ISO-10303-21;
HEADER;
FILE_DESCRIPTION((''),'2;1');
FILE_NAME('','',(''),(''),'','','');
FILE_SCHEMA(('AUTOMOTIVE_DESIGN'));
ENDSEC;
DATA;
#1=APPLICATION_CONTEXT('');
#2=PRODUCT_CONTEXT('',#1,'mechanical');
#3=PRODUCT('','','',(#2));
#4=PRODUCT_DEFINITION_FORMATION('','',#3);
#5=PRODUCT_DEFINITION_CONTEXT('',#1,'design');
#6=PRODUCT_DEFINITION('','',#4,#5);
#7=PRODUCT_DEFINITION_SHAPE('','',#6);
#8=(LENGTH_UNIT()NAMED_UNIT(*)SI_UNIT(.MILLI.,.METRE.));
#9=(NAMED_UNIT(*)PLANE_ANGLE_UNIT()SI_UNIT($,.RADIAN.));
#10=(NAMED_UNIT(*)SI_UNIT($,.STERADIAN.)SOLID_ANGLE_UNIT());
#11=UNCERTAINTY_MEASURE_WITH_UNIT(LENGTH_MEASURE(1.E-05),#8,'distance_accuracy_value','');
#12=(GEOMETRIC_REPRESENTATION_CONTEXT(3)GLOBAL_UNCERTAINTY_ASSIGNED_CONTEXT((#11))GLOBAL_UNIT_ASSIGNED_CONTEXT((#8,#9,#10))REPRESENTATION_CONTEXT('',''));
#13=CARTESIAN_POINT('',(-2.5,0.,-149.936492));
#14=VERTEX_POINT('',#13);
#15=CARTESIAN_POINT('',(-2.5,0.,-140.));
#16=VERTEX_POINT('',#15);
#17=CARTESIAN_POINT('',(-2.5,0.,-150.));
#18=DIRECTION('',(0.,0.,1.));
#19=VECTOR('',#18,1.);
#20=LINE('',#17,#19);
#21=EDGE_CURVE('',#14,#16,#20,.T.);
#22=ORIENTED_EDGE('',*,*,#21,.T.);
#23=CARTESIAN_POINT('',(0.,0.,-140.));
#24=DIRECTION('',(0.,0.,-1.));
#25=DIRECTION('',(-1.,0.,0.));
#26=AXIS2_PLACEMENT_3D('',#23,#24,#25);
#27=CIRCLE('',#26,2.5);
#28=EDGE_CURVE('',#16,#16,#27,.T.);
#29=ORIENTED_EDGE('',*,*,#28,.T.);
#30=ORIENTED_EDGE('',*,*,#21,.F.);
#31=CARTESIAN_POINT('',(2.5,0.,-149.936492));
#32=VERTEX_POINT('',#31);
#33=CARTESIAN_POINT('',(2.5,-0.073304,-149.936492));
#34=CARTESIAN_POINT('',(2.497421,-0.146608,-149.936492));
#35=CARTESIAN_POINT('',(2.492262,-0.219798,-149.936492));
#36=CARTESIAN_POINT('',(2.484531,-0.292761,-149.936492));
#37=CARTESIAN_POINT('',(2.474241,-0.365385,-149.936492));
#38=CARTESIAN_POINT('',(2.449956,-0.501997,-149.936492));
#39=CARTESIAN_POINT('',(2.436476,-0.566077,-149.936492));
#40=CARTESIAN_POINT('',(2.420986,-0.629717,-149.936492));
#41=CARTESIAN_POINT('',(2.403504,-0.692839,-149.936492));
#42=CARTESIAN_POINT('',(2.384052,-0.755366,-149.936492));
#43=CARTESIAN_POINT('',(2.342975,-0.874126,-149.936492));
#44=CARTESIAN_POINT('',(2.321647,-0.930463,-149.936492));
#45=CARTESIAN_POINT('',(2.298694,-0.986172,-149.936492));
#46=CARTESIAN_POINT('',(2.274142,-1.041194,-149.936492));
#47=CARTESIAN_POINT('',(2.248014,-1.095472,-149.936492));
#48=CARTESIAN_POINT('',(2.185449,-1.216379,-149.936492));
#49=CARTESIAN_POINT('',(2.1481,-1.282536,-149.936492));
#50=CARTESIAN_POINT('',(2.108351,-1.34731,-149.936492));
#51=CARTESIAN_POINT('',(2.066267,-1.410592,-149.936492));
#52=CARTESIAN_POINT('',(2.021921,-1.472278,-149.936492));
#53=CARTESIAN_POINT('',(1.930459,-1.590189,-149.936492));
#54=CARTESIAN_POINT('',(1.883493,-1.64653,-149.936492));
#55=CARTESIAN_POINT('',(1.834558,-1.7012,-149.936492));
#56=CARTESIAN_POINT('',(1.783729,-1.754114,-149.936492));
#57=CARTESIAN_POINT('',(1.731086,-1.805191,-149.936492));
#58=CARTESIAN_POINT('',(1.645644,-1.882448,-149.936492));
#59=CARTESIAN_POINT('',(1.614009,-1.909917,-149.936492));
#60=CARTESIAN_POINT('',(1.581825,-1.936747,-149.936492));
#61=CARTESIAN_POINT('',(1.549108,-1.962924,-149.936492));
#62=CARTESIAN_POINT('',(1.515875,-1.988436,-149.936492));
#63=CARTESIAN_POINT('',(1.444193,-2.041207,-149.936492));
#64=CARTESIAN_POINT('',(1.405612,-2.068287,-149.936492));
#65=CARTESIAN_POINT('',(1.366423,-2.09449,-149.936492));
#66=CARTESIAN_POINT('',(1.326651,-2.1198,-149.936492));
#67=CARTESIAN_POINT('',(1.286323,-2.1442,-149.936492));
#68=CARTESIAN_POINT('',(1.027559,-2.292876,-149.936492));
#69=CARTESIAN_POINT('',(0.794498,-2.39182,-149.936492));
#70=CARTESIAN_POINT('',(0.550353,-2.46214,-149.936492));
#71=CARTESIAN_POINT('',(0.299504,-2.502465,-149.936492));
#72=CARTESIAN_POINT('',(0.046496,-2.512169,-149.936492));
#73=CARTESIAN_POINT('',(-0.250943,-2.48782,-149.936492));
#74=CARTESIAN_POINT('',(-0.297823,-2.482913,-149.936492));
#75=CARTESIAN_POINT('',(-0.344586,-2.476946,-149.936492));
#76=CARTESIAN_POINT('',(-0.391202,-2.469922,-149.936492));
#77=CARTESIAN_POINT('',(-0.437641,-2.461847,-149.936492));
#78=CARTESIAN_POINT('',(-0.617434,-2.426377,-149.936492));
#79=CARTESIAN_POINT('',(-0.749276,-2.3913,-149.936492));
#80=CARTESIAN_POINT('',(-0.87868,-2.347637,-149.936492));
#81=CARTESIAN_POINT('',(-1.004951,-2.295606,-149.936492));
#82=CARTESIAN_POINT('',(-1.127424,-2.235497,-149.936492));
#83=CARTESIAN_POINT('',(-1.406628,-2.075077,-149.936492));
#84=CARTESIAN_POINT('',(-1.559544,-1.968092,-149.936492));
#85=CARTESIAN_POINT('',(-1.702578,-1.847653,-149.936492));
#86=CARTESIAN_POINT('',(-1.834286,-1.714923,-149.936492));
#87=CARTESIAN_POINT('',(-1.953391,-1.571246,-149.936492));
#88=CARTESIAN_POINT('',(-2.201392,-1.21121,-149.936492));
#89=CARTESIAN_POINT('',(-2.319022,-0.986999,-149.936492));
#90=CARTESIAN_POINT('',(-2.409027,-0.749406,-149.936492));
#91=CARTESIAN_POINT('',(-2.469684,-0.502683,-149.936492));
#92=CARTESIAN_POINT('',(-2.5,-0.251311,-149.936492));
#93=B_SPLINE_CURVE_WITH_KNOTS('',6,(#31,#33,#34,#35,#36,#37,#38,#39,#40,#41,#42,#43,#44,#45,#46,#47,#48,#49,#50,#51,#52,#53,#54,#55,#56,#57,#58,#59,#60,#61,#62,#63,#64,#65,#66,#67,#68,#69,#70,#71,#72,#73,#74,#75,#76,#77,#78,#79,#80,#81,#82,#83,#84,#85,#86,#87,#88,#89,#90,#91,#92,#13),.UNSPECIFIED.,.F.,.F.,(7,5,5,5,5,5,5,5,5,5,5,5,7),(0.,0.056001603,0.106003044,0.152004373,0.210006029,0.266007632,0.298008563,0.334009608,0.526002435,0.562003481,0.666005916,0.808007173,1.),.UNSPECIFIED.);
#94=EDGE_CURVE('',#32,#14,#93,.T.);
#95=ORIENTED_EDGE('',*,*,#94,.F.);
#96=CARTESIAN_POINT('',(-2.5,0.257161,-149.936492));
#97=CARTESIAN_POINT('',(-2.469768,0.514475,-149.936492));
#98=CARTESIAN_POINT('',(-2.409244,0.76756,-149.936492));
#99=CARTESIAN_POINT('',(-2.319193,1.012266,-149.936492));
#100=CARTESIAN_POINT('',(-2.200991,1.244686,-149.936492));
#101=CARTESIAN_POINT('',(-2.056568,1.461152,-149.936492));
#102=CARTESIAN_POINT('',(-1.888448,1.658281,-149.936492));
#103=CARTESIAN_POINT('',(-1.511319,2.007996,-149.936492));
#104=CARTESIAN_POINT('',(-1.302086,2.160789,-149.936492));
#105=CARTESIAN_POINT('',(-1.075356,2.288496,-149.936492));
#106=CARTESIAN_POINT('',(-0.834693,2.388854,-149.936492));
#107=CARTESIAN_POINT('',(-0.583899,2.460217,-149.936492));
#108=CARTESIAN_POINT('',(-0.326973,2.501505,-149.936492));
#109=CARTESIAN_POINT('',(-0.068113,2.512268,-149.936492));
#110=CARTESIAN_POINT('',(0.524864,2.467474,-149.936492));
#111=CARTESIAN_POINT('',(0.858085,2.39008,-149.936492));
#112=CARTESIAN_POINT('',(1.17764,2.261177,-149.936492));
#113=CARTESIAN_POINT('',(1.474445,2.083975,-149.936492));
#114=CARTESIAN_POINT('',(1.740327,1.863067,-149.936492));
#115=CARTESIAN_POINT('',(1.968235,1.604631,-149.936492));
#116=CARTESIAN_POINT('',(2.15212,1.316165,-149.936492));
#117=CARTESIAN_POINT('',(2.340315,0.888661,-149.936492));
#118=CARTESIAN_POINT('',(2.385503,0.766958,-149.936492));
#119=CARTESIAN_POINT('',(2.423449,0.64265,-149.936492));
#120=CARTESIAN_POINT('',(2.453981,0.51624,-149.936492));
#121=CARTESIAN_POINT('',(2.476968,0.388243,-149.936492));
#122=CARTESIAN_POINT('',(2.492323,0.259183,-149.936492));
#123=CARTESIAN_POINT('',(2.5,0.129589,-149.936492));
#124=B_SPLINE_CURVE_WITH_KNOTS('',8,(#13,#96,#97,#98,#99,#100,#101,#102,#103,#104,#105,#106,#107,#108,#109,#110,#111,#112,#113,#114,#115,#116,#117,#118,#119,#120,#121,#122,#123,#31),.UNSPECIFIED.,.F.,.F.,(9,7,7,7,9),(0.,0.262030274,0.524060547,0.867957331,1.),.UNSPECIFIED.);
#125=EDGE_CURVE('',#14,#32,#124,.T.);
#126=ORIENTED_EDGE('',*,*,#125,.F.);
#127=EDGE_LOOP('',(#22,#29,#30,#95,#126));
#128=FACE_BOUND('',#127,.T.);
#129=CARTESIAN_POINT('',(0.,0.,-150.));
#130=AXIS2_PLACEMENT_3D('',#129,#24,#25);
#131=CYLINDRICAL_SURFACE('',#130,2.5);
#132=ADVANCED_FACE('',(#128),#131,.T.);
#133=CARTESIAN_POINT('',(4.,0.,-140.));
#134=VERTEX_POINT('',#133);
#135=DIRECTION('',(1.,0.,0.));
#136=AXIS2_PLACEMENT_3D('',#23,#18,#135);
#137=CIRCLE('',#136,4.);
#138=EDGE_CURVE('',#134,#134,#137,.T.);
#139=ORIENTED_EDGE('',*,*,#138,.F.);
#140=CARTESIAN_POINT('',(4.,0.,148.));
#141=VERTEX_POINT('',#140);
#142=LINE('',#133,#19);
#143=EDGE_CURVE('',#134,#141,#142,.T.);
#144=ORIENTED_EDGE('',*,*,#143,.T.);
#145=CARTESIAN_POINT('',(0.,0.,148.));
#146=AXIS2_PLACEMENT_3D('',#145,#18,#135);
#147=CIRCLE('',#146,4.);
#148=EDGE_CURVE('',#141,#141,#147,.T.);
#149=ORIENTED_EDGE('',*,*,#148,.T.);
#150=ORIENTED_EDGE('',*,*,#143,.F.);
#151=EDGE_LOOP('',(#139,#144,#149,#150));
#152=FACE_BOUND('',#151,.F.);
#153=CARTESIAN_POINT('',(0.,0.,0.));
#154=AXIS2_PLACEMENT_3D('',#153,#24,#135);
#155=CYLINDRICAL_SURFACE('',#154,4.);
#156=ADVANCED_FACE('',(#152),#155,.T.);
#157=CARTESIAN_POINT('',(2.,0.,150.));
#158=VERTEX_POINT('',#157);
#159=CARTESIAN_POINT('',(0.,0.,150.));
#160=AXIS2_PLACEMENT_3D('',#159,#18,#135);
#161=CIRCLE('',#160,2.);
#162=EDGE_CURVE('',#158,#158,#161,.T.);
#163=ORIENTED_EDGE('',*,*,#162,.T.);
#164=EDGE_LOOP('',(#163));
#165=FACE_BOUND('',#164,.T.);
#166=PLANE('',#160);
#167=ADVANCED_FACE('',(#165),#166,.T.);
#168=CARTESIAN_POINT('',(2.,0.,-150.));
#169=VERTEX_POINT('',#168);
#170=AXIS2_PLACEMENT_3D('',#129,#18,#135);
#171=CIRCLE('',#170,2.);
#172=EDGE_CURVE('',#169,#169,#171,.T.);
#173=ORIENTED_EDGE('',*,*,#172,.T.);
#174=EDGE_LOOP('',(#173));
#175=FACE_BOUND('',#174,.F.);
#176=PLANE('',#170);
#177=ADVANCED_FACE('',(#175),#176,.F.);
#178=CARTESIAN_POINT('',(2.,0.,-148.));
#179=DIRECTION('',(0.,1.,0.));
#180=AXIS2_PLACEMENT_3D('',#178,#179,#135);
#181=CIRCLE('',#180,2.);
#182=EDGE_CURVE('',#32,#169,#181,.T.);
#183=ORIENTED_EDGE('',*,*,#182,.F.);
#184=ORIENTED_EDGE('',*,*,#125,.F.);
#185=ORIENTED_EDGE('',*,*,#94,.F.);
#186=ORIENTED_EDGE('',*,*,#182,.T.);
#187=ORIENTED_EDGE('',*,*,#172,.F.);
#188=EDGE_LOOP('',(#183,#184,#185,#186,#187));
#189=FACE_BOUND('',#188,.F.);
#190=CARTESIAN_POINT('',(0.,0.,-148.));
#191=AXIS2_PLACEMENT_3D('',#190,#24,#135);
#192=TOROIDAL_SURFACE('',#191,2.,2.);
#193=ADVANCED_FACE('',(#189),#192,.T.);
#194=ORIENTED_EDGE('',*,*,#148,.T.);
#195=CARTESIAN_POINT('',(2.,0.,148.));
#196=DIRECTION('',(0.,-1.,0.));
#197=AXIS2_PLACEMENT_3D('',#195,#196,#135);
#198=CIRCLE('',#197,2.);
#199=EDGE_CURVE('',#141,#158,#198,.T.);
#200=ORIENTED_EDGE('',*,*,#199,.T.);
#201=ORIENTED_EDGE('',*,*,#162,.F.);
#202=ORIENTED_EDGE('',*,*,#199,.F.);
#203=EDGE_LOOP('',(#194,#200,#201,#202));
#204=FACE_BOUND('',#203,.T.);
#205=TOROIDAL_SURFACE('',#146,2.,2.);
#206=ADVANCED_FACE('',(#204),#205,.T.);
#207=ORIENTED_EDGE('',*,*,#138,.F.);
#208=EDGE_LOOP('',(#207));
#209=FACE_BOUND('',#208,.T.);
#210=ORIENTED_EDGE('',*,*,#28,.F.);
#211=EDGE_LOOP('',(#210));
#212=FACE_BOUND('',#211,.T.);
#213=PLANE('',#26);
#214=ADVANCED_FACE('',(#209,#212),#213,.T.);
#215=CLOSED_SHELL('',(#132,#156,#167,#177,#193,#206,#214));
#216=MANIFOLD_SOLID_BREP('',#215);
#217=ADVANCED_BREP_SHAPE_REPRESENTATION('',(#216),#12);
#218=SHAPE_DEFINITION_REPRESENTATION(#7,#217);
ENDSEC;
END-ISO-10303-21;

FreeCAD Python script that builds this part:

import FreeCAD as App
import Part
import Sketcher
from FreeCAD import Vector


def edges_at(feature, points):
    """Names of the edges that pass closest to the given points."""
    edges = feature.Shape.Edges
    near = lambda p: min(range(len(edges)), key=lambda i: edges[i].distToShape(Part.Vertex(*p))[0])
    return sorted({f"Edge{near(p) + 1}" for p in points})

doc = App.newDocument("Part")
params = doc.addObject("Spreadsheet::Sheet", "Params")
for row, (alias, value) in enumerate([
    ("sketch1_diameter", "8 mm"),
    ("pad1_length", "300 mm"),
    ("fillet_radius", "2 mm"),
    ("sketch2_diameter", "5 mm"),
    ("sketch2_diameter2", "9 mm"),
    ("pocket1_length", "10 mm"),
], start=1):
    params.set(f"A{row}", alias)
    params.set(f"B{row}", "=" + value)
    params.setAlias(f"B{row}", alias)

body = doc.addObject("PartDesign::Body", "Body")

sketch1 = body.newObject("Sketcher::SketchObject", "Sketch")
sketch1.AttachmentSupport = (doc.getObject("XY_Plane"), [""])
sketch1.MapMode = "FlatFace"
sketch1.addGeometry(Part.Circle(Vector(0, 0, 0), Vector(0, 0, 1), 4), False)
sketch1.addConstraint([
    Sketcher.Constraint("Coincident", 0, 3, -1, 1),
    Sketcher.Constraint("Diameter", 0, 8.0),
])
sketch1.setExpression("Constraints[1]", "Params.sketch1_diameter")
pad1 = body.newObject("PartDesign::Pad", "Pad")
pad1.Profile = sketch1
pad1.setExpression("Length", "Params.pad1_length")
pad1.Midplane = True
doc.recompute()

fillet = body.newObject("PartDesign::Fillet", "Fillet")
fillet.Base = (pad1, edges_at(pad1, [(-4, 0, 150), (-4, 0, -150)]))
fillet.setExpression("Radius", "Params.fillet_radius")

sketch2 = body.newObject("Sketcher::SketchObject", "Sketch001")
sketch2.AttachmentSupport = (doc.getObject("XY_Plane"), [""])
sketch2.MapMode = "FlatFace"
sketch2.AttachmentOffset = App.Placement(Vector(0, 0, -150), App.Rotation())
sketch2.addGeometry([
    Part.Circle(Vector(0, 0, 0), Vector(0, 0, 1), 4.5),
    Part.Circle(Vector(0, 0, 0), Vector(0, 0, 1), 2.5),
], False)
sketch2.addConstraint([
    Sketcher.Constraint("Coincident", 0, 3, -1, 1),
    Sketcher.Constraint("Coincident", 1, 3, -1, 1),
    Sketcher.Constraint("Diameter", 1, 5.0),
    Sketcher.Constraint("Diameter", 0, 9.0),
])
sketch2.setExpression("Constraints[2]", "Params.sketch2_diameter")
sketch2.setExpression("Constraints[3]", "Params.sketch2_diameter2")
pocket1 = body.newObject("PartDesign::Pocket", "Pocket")
pocket1.Profile = sketch2
pocket1.setExpression("Length", "Params.pocket1_length")
pocket1.Reversed = True

doc.recompute()
